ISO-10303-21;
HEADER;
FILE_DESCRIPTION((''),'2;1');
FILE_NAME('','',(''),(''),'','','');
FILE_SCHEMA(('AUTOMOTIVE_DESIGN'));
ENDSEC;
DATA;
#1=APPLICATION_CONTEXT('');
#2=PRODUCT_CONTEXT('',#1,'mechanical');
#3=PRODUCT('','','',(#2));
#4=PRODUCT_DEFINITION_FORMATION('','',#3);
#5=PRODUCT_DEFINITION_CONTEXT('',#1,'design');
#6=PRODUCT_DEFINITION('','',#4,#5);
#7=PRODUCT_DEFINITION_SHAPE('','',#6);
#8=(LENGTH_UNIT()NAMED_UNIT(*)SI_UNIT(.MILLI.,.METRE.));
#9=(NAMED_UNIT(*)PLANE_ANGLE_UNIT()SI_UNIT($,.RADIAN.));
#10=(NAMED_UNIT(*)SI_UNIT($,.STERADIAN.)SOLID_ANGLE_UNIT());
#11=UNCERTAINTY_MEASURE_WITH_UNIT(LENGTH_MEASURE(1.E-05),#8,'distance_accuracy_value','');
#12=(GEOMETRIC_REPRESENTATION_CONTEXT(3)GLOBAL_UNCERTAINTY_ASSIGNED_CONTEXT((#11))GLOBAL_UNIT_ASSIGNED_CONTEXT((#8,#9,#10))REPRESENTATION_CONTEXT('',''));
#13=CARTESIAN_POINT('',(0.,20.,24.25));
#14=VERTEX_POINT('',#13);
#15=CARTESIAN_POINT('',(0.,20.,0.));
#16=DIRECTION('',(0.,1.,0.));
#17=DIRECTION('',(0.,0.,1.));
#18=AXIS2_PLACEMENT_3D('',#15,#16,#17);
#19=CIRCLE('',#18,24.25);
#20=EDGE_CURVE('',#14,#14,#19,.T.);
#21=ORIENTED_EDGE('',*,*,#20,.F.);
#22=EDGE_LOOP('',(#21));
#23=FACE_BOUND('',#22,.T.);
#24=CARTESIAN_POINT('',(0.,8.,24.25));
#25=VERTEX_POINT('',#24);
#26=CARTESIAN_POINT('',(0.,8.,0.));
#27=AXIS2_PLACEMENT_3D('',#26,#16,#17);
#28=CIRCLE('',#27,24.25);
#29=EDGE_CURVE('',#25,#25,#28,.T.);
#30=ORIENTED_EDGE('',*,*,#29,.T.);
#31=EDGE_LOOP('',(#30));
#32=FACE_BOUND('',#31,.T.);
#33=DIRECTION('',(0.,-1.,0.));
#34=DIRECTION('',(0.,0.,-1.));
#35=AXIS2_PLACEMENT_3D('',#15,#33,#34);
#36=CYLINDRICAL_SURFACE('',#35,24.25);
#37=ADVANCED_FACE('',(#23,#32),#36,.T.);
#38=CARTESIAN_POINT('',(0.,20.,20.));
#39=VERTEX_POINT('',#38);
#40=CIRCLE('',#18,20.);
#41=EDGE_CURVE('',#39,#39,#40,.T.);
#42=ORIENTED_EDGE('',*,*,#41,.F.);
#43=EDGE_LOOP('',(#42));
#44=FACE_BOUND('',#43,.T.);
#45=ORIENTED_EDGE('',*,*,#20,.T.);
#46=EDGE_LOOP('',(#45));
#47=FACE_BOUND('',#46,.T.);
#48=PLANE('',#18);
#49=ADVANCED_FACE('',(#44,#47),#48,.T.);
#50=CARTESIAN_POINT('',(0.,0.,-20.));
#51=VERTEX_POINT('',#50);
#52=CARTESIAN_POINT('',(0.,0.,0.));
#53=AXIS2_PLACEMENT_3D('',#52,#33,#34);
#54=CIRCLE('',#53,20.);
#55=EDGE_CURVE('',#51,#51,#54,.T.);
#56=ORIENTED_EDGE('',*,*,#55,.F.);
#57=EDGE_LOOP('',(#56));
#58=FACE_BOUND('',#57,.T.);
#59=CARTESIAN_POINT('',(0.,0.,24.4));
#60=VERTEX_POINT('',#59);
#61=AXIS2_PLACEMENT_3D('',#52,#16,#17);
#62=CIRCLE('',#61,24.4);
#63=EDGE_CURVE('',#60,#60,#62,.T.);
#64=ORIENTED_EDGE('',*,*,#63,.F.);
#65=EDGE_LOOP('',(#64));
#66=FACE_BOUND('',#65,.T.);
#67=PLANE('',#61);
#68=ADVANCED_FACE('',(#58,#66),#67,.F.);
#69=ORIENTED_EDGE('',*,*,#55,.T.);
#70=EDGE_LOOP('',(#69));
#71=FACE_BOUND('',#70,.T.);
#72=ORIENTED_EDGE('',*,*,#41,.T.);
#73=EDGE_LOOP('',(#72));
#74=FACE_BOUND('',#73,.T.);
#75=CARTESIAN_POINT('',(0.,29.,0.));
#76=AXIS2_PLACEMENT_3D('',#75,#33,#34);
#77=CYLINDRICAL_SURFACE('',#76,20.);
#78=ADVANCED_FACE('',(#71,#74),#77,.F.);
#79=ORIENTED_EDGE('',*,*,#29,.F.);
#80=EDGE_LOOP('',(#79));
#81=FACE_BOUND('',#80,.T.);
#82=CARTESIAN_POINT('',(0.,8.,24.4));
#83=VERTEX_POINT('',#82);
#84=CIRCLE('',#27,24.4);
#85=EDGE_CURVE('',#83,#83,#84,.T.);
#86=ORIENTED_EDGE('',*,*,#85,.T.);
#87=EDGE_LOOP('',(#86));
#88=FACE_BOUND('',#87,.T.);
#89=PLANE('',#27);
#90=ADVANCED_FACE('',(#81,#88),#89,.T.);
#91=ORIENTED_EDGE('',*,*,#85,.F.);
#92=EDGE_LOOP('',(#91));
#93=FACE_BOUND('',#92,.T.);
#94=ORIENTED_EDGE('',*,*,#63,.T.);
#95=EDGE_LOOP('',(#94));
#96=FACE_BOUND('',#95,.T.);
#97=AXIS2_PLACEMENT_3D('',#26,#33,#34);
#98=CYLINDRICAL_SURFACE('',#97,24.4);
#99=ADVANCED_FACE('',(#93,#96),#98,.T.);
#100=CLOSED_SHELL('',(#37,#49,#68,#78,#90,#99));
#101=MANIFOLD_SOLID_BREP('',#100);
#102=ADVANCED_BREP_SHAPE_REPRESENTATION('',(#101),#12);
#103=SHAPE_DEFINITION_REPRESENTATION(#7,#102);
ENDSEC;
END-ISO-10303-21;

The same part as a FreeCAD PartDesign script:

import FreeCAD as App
import Part
import Sketcher
Q = App.Units.Quantity

doc = App.newDocument("Part")
params = doc.addObject("Spreadsheet::Sheet", "Params")
for row, (alias, value) in enumerate([
    ("sketch1_diameter", "48.8 mm"),
    ("pad1_length", "8 mm"),
    ("sketch2_diameter", "48.5 mm"),
    ("pad2_length", "12 mm"),
    ("sketch3_diameter", "40 mm"),
    ("pocket1_length", "29 mm"),
], start=1):
    params.set(f"A{row}", alias)
    params.set(f"B{row}", "=" + value)
    params.setAlias(f"B{row}", alias)

body = doc.addObject("PartDesign::Body", "Body")

# Sketch on XZ plane
sketch1 = doc.addObject("Sketcher::SketchObject", "Sketch")
body.addObject(sketch1)
sketch1.AttachmentSupport = (doc.XZ_Plane, [""])
sketch1.MapMode = "FlatFace"
sketch1.addGeometry(Part.Circle(App.Vector(0, 0, 0), App.Vector(0, 0, 1), 24), False)
sketch1.addConstraint(Sketcher.Constraint("Coincident", 0, 3, -1, 1))
sketch1.addConstraint(Sketcher.Constraint("Diameter", 0, Q("48.8 mm")))
sketch1.setExpression("Constraints[1]", "Params.sketch1_diameter")
pad1 = doc.addObject("PartDesign::Pad", "Pad")
body.addObject(pad1)
pad1.Profile = sketch1
pad1.setExpression("Length", "Params.pad1_length")
pad1.Reversed = True

# Sketch on XZ plane
sketch2 = doc.addObject("Sketcher::SketchObject", "Sketch001")
body.addObject(sketch2)
sketch2.AttachmentSupport = (doc.XZ_Plane, [""])
sketch2.MapMode = "FlatFace"
sketch2.AttachmentOffset = App.Placement(App.Vector(0, 0, -8), App.Rotation())
sketch2.addGeometry(Part.Circle(App.Vector(0, 0, 0), App.Vector(0, 0, 1), 24), False)
sketch2.addConstraint(Sketcher.Constraint("Coincident", 0, 3, -1, 1))
sketch2.addConstraint(Sketcher.Constraint("Diameter", 0, Q("48.5 mm")))
sketch2.setExpression("Constraints[1]", "Params.sketch2_diameter")
pad2 = doc.addObject("PartDesign::Pad", "Pad001")
body.addObject(pad2)
pad2.Profile = sketch2
pad2.setExpression("Length", "Params.pad2_length")
pad2.Reversed = True

# Sketch on XZ plane
sketch3 = doc.addObject("Sketcher::SketchObject", "Sketch002")
body.addObject(sketch3)
sketch3.AttachmentSupport = (doc.XZ_Plane, [""])
sketch3.MapMode = "FlatFace"
sketch3.addGeometry(Part.Circle(App.Vector(0, 0, 0), App.Vector(0, 0, 1), 20), False)
sketch3.addConstraint(Sketcher.Constraint("Coincident", 0, 3, -1, 1))
sketch3.addConstraint(Sketcher.Constraint("Diameter", 0, Q("40 mm")))
sketch3.setExpression("Constraints[1]", "Params.sketch3_diameter")
pocket1 = doc.addObject("PartDesign::Pocket", "Pocket")
body.addObject(pocket1)
pocket1.Profile = sketch3
pocket1.setExpression("Length", "Params.pocket1_length")

doc.recompute()
